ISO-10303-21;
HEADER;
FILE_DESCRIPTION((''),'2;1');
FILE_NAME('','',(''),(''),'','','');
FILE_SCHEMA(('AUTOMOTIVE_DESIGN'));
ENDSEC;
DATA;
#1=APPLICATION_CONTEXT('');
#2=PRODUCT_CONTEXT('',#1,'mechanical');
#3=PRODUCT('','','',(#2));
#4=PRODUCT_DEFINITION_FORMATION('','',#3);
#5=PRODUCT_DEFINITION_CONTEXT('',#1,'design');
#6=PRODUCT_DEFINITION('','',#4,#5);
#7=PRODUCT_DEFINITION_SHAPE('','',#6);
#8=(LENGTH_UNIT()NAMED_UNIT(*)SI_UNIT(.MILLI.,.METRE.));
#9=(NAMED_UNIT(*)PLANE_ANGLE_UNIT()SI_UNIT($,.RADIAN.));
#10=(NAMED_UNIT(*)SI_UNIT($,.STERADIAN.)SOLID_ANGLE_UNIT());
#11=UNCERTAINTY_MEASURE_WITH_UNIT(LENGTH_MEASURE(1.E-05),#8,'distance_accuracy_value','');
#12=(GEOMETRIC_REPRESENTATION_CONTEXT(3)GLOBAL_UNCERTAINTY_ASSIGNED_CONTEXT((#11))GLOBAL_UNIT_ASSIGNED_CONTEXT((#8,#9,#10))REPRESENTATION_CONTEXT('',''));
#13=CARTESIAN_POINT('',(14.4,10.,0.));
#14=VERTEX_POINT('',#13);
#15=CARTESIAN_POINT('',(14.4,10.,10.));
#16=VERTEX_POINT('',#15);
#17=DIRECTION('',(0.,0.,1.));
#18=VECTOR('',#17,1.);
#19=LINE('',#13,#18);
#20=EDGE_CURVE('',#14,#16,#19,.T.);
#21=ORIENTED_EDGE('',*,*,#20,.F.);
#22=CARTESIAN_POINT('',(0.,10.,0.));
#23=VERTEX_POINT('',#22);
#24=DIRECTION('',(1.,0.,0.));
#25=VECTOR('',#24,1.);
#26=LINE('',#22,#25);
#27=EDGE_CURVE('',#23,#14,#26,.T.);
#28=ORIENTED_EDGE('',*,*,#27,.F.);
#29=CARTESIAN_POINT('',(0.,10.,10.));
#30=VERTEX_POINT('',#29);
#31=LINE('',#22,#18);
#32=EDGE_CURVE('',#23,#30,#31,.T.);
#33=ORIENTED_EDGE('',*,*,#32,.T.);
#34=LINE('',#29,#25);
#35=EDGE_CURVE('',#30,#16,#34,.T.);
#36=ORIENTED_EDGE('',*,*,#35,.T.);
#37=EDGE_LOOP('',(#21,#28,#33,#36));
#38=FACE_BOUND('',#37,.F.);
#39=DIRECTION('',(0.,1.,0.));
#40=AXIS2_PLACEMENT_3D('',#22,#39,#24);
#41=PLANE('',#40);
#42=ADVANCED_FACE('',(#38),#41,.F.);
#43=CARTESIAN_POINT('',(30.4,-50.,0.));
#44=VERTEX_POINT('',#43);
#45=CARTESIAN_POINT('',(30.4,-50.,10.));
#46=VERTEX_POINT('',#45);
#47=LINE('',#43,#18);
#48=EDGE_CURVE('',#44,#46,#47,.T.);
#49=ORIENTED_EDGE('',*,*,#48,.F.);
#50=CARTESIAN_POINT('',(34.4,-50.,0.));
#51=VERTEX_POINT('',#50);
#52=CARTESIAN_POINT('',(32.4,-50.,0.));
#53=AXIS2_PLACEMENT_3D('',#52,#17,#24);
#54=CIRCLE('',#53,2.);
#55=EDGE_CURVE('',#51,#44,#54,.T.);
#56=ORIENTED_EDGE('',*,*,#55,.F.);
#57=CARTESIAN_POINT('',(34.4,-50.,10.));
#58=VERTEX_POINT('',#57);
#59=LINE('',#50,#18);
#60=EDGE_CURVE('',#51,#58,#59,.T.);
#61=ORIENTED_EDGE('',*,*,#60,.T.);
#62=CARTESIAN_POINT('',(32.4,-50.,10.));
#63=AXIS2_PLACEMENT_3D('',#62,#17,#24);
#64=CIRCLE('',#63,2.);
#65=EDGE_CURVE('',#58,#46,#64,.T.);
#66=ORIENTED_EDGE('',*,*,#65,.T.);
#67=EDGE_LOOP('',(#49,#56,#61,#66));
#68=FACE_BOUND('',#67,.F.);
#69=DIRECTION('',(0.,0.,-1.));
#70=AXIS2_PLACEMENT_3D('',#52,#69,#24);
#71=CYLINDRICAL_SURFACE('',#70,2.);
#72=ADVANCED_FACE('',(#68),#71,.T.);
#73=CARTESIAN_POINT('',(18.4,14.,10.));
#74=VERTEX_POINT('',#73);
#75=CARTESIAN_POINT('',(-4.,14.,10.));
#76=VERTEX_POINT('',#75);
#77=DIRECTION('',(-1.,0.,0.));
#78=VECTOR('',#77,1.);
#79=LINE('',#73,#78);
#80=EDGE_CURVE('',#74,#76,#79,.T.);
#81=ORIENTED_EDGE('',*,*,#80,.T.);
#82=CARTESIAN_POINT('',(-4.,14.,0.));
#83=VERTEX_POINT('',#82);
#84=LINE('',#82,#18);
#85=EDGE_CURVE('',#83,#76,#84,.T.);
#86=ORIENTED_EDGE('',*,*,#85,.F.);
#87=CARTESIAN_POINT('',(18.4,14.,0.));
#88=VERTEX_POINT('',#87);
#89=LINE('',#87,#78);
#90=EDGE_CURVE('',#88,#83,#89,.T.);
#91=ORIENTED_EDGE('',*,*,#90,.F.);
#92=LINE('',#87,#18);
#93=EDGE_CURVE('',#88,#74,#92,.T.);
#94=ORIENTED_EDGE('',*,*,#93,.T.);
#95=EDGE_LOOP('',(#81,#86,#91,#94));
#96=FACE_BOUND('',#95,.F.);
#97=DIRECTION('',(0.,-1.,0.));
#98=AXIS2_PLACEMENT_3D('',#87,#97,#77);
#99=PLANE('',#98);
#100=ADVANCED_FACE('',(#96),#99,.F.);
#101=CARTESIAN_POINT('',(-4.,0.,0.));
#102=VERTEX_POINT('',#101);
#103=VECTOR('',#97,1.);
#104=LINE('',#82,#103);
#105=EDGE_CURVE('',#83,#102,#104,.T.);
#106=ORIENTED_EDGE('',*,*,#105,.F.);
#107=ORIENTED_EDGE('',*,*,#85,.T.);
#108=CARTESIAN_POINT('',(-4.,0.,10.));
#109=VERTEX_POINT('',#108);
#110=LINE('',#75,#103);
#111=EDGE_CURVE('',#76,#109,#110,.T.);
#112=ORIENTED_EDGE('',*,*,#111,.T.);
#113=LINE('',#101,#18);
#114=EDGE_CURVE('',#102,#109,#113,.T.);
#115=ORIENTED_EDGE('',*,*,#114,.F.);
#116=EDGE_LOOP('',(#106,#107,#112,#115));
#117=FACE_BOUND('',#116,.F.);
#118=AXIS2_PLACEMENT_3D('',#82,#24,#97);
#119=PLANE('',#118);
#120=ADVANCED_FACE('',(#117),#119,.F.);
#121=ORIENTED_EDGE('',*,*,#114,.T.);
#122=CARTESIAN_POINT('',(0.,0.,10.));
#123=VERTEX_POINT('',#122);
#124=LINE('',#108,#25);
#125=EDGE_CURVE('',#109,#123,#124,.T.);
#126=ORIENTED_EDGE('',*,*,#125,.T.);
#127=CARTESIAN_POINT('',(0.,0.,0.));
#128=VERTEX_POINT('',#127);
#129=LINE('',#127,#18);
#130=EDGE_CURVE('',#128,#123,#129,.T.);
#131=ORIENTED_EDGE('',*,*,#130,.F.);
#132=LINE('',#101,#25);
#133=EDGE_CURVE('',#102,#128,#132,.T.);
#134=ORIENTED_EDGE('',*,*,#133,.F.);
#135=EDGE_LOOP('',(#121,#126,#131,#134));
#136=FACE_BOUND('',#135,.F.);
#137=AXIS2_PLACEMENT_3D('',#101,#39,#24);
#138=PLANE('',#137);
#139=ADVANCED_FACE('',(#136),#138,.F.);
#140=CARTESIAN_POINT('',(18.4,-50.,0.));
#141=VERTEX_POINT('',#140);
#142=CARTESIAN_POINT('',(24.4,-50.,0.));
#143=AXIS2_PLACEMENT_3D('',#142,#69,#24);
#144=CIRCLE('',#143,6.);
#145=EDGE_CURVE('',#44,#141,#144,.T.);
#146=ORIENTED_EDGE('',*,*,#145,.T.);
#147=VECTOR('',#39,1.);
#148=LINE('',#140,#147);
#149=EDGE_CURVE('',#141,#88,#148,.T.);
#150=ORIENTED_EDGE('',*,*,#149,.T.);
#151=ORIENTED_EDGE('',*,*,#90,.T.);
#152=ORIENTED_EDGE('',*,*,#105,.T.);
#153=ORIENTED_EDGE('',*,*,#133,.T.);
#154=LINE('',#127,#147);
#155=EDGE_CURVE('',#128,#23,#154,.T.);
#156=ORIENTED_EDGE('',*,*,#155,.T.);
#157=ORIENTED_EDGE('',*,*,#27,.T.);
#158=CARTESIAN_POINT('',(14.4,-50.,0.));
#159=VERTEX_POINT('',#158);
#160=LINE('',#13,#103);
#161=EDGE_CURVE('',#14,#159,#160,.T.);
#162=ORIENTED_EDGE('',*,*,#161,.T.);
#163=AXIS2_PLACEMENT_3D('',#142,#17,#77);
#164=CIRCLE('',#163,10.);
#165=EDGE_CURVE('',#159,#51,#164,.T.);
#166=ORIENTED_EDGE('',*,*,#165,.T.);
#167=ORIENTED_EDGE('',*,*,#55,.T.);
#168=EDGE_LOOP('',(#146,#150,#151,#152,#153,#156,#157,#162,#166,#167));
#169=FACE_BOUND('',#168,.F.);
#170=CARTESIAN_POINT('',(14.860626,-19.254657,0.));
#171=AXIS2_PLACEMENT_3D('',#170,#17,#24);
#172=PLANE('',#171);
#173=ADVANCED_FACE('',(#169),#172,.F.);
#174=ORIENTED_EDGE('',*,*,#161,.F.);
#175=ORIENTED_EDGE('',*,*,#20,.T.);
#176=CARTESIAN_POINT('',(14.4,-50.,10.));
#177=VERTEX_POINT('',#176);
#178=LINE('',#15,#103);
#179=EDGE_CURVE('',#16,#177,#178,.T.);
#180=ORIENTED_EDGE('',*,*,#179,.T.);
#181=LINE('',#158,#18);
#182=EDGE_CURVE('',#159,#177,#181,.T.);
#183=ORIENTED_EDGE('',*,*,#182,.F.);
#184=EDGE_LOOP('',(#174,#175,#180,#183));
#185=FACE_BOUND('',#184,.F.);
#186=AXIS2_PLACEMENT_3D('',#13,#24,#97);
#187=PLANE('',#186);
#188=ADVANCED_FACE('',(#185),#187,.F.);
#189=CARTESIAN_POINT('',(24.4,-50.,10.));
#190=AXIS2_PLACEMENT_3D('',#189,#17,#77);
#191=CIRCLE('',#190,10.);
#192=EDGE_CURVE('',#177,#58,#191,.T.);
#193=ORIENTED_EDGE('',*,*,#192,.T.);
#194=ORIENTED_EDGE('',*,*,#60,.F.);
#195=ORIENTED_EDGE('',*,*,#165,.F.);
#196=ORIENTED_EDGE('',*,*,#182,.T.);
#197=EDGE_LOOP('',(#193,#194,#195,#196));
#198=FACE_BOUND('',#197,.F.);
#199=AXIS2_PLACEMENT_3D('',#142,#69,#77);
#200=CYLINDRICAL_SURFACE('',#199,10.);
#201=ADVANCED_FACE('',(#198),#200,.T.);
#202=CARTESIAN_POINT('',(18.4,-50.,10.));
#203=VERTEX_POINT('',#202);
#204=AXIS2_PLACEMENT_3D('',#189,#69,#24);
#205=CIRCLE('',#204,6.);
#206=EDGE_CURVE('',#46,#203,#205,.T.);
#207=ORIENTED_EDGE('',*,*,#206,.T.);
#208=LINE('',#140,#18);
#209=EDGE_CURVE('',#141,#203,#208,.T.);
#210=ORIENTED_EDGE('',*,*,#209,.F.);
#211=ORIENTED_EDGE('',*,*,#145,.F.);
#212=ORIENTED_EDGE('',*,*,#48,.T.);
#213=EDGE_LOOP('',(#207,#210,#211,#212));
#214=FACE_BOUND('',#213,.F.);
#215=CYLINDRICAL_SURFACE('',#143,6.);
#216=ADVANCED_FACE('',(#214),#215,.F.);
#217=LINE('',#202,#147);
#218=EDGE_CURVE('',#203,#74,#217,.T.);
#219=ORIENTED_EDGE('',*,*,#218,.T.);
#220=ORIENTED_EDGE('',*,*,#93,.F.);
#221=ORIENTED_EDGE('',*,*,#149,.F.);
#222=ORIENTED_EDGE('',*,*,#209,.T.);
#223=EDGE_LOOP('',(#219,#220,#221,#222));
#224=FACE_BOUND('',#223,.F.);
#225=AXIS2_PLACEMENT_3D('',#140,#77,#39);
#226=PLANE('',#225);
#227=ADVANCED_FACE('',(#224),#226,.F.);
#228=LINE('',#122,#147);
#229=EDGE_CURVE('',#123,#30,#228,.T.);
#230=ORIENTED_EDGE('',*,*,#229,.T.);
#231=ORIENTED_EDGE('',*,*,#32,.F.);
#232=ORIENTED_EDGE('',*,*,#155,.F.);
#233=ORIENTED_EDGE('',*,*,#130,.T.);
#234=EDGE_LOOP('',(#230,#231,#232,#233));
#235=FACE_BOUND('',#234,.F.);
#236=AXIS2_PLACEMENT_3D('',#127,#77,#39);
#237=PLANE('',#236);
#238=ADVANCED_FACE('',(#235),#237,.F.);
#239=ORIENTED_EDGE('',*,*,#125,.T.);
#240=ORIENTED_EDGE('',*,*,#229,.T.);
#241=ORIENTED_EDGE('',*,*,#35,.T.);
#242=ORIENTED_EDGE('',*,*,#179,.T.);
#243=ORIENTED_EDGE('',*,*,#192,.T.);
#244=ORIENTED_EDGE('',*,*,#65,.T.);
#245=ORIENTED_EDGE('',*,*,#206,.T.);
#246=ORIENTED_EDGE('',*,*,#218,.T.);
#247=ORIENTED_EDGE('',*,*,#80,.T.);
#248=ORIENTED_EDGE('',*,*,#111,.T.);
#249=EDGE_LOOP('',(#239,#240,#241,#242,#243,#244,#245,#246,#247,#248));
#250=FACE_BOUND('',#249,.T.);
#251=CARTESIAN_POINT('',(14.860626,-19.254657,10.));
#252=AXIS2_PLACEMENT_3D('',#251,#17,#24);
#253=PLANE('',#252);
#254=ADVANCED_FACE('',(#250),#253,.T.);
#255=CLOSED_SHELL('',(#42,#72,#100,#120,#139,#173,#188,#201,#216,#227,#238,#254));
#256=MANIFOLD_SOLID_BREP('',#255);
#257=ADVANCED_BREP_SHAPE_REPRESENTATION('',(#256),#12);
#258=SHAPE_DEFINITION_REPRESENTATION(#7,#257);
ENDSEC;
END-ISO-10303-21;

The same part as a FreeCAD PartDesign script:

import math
import FreeCAD as App
import Part
import Sketcher
from FreeCAD import Vector
Q = App.Units.Quantity

doc = App.newDocument("Part")
body = doc.addObject("PartDesign::Body", "Body")

sketch1 = body.newObject("Sketcher::SketchObject", "Sketch")
sketch1.AttachmentSupport = (doc.getObject("XY_Plane"), [""])
sketch1.MapMode = "FlatFace"
sketch1.addGeometry([
    Part.LineSegment(Vector(-4, 0, 0), Vector(0, 0, 0)),
    Part.LineSegment(Vector(0, 0, 0), Vector(0, 10, 0)),
    Part.LineSegment(Vector(0, 10, 0), Vector(14.4, 10, 0)),
    Part.LineSegment(Vector(14.4, 10, 0), Vector(14.4, -50, 0)),
    Part.ArcOfCircle(Part.Circle(Vector(24.4, -50, 0), Vector(0, 0, 1), 10), math.radians(180), math.radians(360)),
    Part.ArcOfCircle(Part.Circle(Vector(32.4, -50, 0), Vector(0, 0, 1), 2), math.radians(0), math.radians(180)),
    Part.ArcOfCircle(Part.Circle(Vector(24.4, -50, 0), Vector(0, 0, 1), 6), math.radians(180), math.radians(360)),
    Part.LineSegment(Vector(18.4, -50, 0), Vector(18.4, 14, 0)),
    Part.LineSegment(Vector(18.4, 14, 0), Vector(-4, 14, 0)),
    Part.LineSegment(Vector(-4, 14, 0), Vector(-4, 0, 0)),
], False)
sketch1.addConstraint([
    Sketcher.Constraint("Coincident", 0, 2, 1, 1),
    Sketcher.Constraint("Coincident", 1, 2, 2, 1),
    Sketcher.Constraint("Coincident", 2, 2, 3, 1),
    Sketcher.Constraint("Tangent", 3, 2, 4, 1),
    Sketcher.Constraint("Tangent", 4, 2, 5, 1),
    Sketcher.Constraint("Tangent", 5, 2, 6, 2),
    Sketcher.Constraint("Tangent", 6, 1, 7, 1),
    Sketcher.Constraint("Coincident", 7, 2, 8, 1),
    Sketcher.Constraint("Coincident", 8, 2, 9, 1),
    Sketcher.Constraint("Coincident", 9, 2, 0, 1),
    Sketcher.Constraint("Horizontal", 0),
    Sketcher.Constraint("Vertical", 1),
    Sketcher.Constraint("Horizontal", 2),
    Sketcher.Constraint("Vertical", 3),
    Sketcher.Constraint("Vertical", 7),
    Sketcher.Constraint("Horizontal", 8),
    Sketcher.Constraint("Vertical", 9),
    Sketcher.Constraint("Coincident", 0, 2, -1, 1),
    Sketcher.Constraint("Coincident", 6, 3, 4, 3),
    Sketcher.Constraint("Horizontal", 4, 3, 5, 3),
    Sketcher.Constraint("Radius", 4, Q("10 mm")),
    Sketcher.Constraint("Radius", 5, Q("2 mm")),
    Sketcher.Constraint("DistanceX", 0, 1, 0, 2, Q("4 mm")),
    Sketcher.Constraint("DistanceY", 1, 1, 1, 2, Q("10 mm")),
    Sketcher.Constraint("DistanceY", 3, 2, 3, 1, Q("60 mm")),
    Sketcher.Constraint("DistanceY", 7, 1, 7, 2, Q("64 mm")),
    Sketcher.Constraint("DistanceX", 2, 1, 2, 2, Q("14.4 mm")),
])
pad1 = body.newObject("PartDesign::Pad", "Pad")
pad1.Profile = sketch1
pad1.Length = 10

doc.recompute()
